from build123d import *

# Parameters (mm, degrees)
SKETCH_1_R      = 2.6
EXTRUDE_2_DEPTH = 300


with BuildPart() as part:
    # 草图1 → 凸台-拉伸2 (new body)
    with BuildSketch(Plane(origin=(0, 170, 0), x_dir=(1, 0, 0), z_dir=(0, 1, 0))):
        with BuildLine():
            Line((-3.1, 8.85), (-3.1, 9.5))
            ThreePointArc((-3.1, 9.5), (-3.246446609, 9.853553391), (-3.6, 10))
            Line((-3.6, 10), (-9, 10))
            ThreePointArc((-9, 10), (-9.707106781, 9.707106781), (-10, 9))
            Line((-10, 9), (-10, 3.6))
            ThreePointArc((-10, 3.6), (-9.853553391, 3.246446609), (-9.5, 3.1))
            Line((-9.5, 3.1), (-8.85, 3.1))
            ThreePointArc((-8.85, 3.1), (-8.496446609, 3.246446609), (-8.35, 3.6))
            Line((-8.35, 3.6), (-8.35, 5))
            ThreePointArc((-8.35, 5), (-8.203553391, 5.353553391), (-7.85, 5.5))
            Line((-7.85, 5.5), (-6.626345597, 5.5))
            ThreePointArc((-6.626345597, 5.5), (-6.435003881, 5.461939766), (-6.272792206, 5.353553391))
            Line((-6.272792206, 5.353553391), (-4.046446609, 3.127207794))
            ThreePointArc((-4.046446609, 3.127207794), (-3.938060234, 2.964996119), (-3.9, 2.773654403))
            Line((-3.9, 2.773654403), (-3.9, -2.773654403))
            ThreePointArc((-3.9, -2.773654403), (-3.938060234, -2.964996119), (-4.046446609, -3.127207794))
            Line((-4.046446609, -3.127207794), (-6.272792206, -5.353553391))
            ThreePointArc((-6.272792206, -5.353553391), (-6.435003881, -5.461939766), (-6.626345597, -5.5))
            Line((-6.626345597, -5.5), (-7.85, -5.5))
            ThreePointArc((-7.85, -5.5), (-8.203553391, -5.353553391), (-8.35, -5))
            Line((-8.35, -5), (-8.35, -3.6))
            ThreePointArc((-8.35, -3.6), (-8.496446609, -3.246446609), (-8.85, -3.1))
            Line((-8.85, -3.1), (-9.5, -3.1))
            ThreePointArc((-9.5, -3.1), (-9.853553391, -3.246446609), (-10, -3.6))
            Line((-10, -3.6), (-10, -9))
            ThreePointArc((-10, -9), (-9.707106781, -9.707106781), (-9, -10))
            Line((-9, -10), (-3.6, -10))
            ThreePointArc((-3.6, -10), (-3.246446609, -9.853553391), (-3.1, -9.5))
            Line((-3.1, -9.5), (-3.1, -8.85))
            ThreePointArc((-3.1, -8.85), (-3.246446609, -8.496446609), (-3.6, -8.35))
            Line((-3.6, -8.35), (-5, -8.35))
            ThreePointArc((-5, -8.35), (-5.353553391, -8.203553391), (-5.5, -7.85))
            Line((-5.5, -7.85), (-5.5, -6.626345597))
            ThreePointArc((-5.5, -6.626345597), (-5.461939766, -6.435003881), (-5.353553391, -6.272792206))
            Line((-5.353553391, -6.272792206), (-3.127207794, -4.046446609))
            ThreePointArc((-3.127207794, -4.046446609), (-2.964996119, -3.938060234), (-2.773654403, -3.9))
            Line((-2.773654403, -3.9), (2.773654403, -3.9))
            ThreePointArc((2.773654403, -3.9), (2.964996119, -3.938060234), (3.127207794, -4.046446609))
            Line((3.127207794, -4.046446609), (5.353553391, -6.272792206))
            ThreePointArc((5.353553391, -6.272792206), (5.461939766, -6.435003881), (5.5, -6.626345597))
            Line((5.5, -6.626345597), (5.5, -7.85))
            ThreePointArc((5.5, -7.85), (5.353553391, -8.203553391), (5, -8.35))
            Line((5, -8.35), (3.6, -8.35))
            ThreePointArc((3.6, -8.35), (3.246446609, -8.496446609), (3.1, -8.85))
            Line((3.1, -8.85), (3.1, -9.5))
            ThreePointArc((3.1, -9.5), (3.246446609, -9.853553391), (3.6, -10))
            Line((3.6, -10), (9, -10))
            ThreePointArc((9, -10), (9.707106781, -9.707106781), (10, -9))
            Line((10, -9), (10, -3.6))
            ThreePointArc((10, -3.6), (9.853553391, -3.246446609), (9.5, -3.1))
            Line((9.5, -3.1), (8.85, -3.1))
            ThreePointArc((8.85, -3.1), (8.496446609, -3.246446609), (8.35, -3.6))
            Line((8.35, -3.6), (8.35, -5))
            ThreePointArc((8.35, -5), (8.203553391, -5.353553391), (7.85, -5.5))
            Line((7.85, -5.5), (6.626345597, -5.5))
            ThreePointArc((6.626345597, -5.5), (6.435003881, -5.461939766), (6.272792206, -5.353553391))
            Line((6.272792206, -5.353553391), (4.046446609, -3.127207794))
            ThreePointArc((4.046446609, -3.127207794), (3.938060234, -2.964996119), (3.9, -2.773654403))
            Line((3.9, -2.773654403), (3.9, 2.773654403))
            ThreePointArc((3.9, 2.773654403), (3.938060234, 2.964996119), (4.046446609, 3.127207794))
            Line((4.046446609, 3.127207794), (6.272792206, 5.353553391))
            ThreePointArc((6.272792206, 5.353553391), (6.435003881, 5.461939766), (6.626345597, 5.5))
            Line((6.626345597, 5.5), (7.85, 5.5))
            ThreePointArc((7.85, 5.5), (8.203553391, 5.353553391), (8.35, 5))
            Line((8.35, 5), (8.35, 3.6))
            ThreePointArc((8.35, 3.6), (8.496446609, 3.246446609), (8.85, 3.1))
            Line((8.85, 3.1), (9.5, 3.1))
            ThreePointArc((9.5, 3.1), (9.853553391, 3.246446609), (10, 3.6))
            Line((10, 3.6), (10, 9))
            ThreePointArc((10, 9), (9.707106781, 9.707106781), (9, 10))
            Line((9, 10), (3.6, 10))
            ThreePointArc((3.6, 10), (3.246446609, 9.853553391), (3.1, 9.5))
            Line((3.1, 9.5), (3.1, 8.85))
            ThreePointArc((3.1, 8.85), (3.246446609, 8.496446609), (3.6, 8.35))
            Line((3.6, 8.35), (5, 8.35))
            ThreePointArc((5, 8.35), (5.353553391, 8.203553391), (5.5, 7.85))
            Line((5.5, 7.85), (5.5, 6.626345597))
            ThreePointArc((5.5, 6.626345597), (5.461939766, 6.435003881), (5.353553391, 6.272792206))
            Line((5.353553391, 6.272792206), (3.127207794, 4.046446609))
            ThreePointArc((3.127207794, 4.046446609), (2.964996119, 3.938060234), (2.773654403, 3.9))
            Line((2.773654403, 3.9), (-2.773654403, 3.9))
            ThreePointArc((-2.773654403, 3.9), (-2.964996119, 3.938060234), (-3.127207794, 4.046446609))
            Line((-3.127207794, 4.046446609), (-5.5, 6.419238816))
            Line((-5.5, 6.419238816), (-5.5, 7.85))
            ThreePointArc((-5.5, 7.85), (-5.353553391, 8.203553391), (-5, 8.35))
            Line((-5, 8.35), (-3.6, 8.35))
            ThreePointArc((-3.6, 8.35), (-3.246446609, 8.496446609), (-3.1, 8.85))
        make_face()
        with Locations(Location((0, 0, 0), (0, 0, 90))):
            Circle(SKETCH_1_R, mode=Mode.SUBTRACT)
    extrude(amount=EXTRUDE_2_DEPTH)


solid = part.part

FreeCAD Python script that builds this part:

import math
import FreeCAD as App
import Part
import Sketcher

V = App.Vector

doc = App.newDocument("Part")
body = doc.addObject("PartDesign::Body", "Body")

sketch1 = body.newObject("Sketcher::SketchObject", "Sketch")
sketch1.AttachmentSupport = (doc.getObject("XZ_Plane"), [""])
sketch1.MapMode = "FlatFace"
sketch1.AttachmentOffset = App.Placement(V(0, 0, -170), App.Rotation())
sketch1.addGeometry([
    Part.LineSegment(V(-3.1, -8.85, 0), V(-3.1, -9.5, 0)),
    Part.ArcOfCircle(Part.Circle(V(-3.6, -9.5, 0), V(0, 0, 1), 0.5), math.radians(-90), math.radians(0)),
    Part.LineSegment(V(-3.6, -10, 0), V(-9, -10, 0)),
    Part.ArcOfCircle(Part.Circle(V(-9, -9, 0), V(0, 0, 1), 1), math.radians(-180), math.radians(-90)),
    Part.LineSegment(V(-10, -9, 0), V(-10, -3.6, 0)),
    Part.ArcOfCircle(Part.Circle(V(-9.5, -3.6, 0), V(0, 0, 1), 0.5), math.radians(90), math.radians(180)),
    Part.LineSegment(V(-9.5, -3.1, 0), V(-8.85, -3.1, 0)),
    Part.ArcOfCircle(Part.Circle(V(-8.85, -3.6, 0), V(0, 0, 1), 0.5), math.radians(0), math.radians(90)),
    Part.LineSegment(V(-8.35, -3.6, 0), V(-8.35, -5, 0)),
    Part.ArcOfCircle(Part.Circle(V(-7.85, -5, 0), V(0, 0, 1), 0.5), math.radians(180), math.radians(270)),
    Part.LineSegment(V(-7.85, -5.5, 0), V(-6.63, -5.5, 0)),
    Part.ArcOfCircle(Part.Circle(V(-6.63, -5, 0), V(0, 0, 1), 0.5), math.radians(-90), math.radians(-45)),
    Part.LineSegment(V(-6.27, -5.35, 0), V(-4.05, -3.13, 0)),
    Part.ArcOfCircle(Part.Circle(V(-4.4, -2.77, 0), V(0, 0, 1), 0.5), math.radians(-45), math.radians(0)),
    Part.LineSegment(V(-3.9, -2.77, 0), V(-3.9, 2.77, 0)),
    Part.ArcOfCircle(Part.Circle(V(-4.4, 2.77, 0), V(0, 0, 1), 0.5), math.radians(0), math.radians(45)),
    Part.LineSegment(V(-4.05, 3.13, 0), V(-6.27, 5.35, 0)),
    Part.ArcOfCircle(Part.Circle(V(-6.63, 5, 0), V(0, 0, 1), 0.5), math.radians(45), math.radians(90)),
    Part.LineSegment(V(-6.63, 5.5, 0), V(-7.85, 5.5, 0)),
    Part.ArcOfCircle(Part.Circle(V(-7.85, 5, 0), V(0, 0, 1), 0.5), math.radians(90), math.radians(180)),
    Part.LineSegment(V(-8.35, 5, 0), V(-8.35, 3.6, 0)),
    Part.ArcOfCircle(Part.Circle(V(-8.85, 3.6, 0), V(0, 0, 1), 0.5), math.radians(-90), math.radians(0)),
    Part.LineSegment(V(-8.85, 3.1, 0), V(-9.5, 3.1, 0)),
    Part.ArcOfCircle(Part.Circle(V(-9.5, 3.6, 0), V(0, 0, 1), 0.5), math.radians(180), math.radians(270)),
    Part.LineSegment(V(-10, 3.6, 0), V(-10, 9, 0)),
    Part.ArcOfCircle(Part.Circle(V(-9, 9, 0), V(0, 0, 1), 1), math.radians(90), math.radians(180)),
    Part.LineSegment(V(-9, 10, 0), V(-3.6, 10, 0)),
    Part.ArcOfCircle(Part.Circle(V(-3.6, 9.5, 0), V(0, 0, 1), 0.5), math.radians(0), math.radians(90)),
    Part.LineSegment(V(-3.1, 9.5, 0), V(-3.1, 8.85, 0)),
    Part.ArcOfCircle(Part.Circle(V(-3.6, 8.85, 0), V(0, 0, 1), 0.5), math.radians(-90), math.radians(0)),
    Part.LineSegment(V(-3.6, 8.35, 0), V(-5, 8.35, 0)),
    Part.ArcOfCircle(Part.Circle(V(-5, 7.85, 0), V(0, 0, 1), 0.5), math.radians(90), math.radians(180)),
    Part.LineSegment(V(-5.5, 7.85, 0), V(-5.5, 6.63, 0)),
    Part.ArcOfCircle(Part.Circle(V(-5, 6.63, 0), V(0, 0, 1), 0.5), math.radians(-180), math.radians(-135)),
    Part.LineSegment(V(-5.35, 6.27, 0), V(-3.13, 4.05, 0)),
    Part.ArcOfCircle(Part.Circle(V(-2.77, 4.4, 0), V(0, 0, 1), 0.5), math.radians(-135), math.radians(-90)),
    Part.LineSegment(V(-2.77, 3.9, 0), V(2.77, 3.9, 0)),
    Part.ArcOfCircle(Part.Circle(V(2.77, 4.4, 0), V(0, 0, 1), 0.5), math.radians(-90), math.radians(-45)),
    Part.LineSegment(V(3.13, 4.05, 0), V(5.35, 6.27, 0)),
    Part.ArcOfCircle(Part.Circle(V(5, 6.63, 0), V(0, 0, 1), 0.5), math.radians(-45), math.radians(0)),
    Part.LineSegment(V(5.5, 6.63, 0), V(5.5, 7.85, 0)),
    Part.ArcOfCircle(Part.Circle(V(5, 7.85, 0), V(0, 0, 1), 0.5), math.radians(0), math.radians(90)),
    Part.LineSegment(V(5, 8.35, 0), V(3.6, 8.35, 0)),
    Part.ArcOfCircle(Part.Circle(V(3.6, 8.85, 0), V(0, 0, 1), 0.5), math.radians(180), math.radians(270)),
    Part.LineSegment(V(3.1, 8.85, 0), V(3.1, 9.5, 0)),
    Part.ArcOfCircle(Part.Circle(V(3.6, 9.5, 0), V(0, 0, 1), 0.5), math.radians(90), math.radians(180)),
    Part.LineSegment(V(3.6, 10, 0), V(9, 10, 0)),
    Part.ArcOfCircle(Part.Circle(V(9, 9, 0), V(0, 0, 1), 1), math.radians(0), math.radians(90)),
    Part.LineSegment(V(10, 9, 0), V(10, 3.6, 0)),
    Part.ArcOfCircle(Part.Circle(V(9.5, 3.6, 0), V(0, 0, 1), 0.5), math.radians(-90), math.radians(0)),
    Part.LineSegment(V(9.5, 3.1, 0), V(8.85, 3.1, 0)),
    Part.ArcOfCircle(Part.Circle(V(8.85, 3.6, 0), V(0, 0, 1), 0.5), math.radians(180), math.radians(270)),
    Part.LineSegment(V(8.35, 3.6, 0), V(8.35, 5, 0)),
    Part.ArcOfCircle(Part.Circle(V(7.85, 5, 0), V(0, 0, 1), 0.5), math.radians(0), math.radians(90)),
    Part.LineSegment(V(7.85, 5.5, 0), V(6.63, 5.5, 0)),
    Part.ArcOfCircle(Part.Circle(V(6.63, 5, 0), V(0, 0, 1), 0.5), math.radians(90), math.radians(135)),
    Part.LineSegment(V(6.27, 5.35, 0), V(4.05, 3.13, 0)),
    Part.ArcOfCircle(Part.Circle(V(4.4, 2.77, 0), V(0, 0, 1), 0.5), math.radians(135), math.radians(180)),
    Part.LineSegment(V(3.9, 2.77, 0), V(3.9, -2.77, 0)),
    Part.ArcOfCircle(Part.Circle(V(4.4, -2.77, 0), V(0, 0, 1), 0.5), math.radians(-180), math.radians(-135)),
    Part.LineSegment(V(4.05, -3.13, 0), V(6.27, -5.35, 0)),
    Part.ArcOfCircle(Part.Circle(V(6.63, -5, 0), V(0, 0, 1), 0.5), math.radians(-135), math.radians(-90)),
    Part.LineSegment(V(6.63, -5.5, 0), V(7.85, -5.5, 0)),
    Part.ArcOfCircle(Part.Circle(V(7.85, -5, 0), V(0, 0, 1), 0.5), math.radians(-90), math.radians(0)),
    Part.LineSegment(V(8.35, -5, 0), V(8.35, -3.6, 0)),
    Part.ArcOfCircle(Part.Circle(V(8.85, -3.6, 0), V(0, 0, 1), 0.5), math.radians(90), math.radians(180)),
    Part.LineSegment(V(8.85, -3.1, 0), V(9.5, -3.1, 0)),
    Part.ArcOfCircle(Part.Circle(V(9.5, -3.6, 0), V(0, 0, 1), 0.5), math.radians(0), math.radians(90)),
    Part.LineSegment(V(10, -3.6, 0), V(10, -9, 0)),
    Part.ArcOfCircle(Part.Circle(V(9, -9, 0), V(0, 0, 1), 1), math.radians(-90), math.radians(0)),
    Part.LineSegment(V(9, -10, 0), V(3.6, -10, 0)),
    Part.ArcOfCircle(Part.Circle(V(3.6, -9.5, 0), V(0, 0, 1), 0.5), math.radians(180), math.radians(270)),
    Part.LineSegment(V(3.1, -9.5, 0), V(3.1, -8.85, 0)),
    Part.ArcOfCircle(Part.Circle(V(3.6, -8.85, 0), V(0, 0, 1), 0.5), math.radians(90), math.radians(180)),
    Part.LineSegment(V(3.6, -8.35, 0), V(5, -8.35, 0)),
    Part.ArcOfCircle(Part.Circle(V(5, -7.85, 0), V(0, 0, 1), 0.5), math.radians(-90), math.radians(0)),
    Part.LineSegment(V(5.5, -7.85, 0), V(5.5, -6.63, 0)),
    Part.ArcOfCircle(Part.Circle(V(5, -6.63, 0), V(0, 0, 1), 0.5), math.radians(0), math.radians(45)),
    Part.LineSegment(V(5.35, -6.27, 0), V(3.13, -4.05, 0)),
    Part.ArcOfCircle(Part.Circle(V(2.77, -4.4, 0), V(0, 0, 1), 0.5), math.radians(45), math.radians(90)),
    Part.LineSegment(V(2.77, -3.9, 0), V(-2.77, -3.9, 0)),
    Part.ArcOfCircle(Part.Circle(V(-2.77, -4.4, 0), V(0, 0, 1), 0.5), math.radians(90), math.radians(135)),
    Part.LineSegment(V(-3.13, -4.05, 0), V(-5.5, -6.42, 0)),
    Part.LineSegment(V(-5.5, -6.42, 0), V(-5.5, -7.85, 0)),
    Part.ArcOfCircle(Part.Circle(V(-5, -7.85, 0), V(0, 0, 1), 0.5), math.radians(180), math.radians(270)),
    Part.LineSegment(V(-5, -8.35, 0), V(-3.6, -8.35, 0)),
    Part.ArcOfCircle(Part.Circle(V(-3.6, -8.85, 0), V(0, 0, 1), 0.5), math.radians(0), math.radians(90)),
    Part.Circle(V(0, 0, 0), V(0, 0, 1), 2.6),
], False)
sketch1.addConstraint([
    Sketcher.Constraint("Tangent", 0, 2, 1, 2),
    Sketcher.Constraint("Tangent", 1, 1, 2, 1),
    Sketcher.Constraint("Tangent", 2, 2, 3, 2),
    Sketcher.Constraint("Tangent", 3, 1, 4, 1),
    Sketcher.Constraint("Tangent", 4, 2, 5, 2),
    Sketcher.Constraint("Tangent", 5, 1, 6, 1),
    Sketcher.Constraint("Tangent", 6, 2, 7, 2),
    Sketcher.Constraint("Tangent", 7, 1, 8, 1),
    Sketcher.Constraint("Tangent", 8, 2, 9, 1),
    Sketcher.Constraint("Tangent", 9, 2, 10, 1),
    Sketcher.Constraint("Tangent", 10, 2, 11, 1),
    Sketcher.Constraint("Tangent", 11, 2, 12, 1),
    Sketcher.Constraint("Tangent", 12, 2, 13, 1),
    Sketcher.Constraint("Tangent", 13, 2, 14, 1),
    Sketcher.Constraint("Tangent", 14, 2, 15, 1),
    Sketcher.Constraint("Tangent", 15, 2, 16, 1),
    Sketcher.Constraint("Tangent", 16, 2, 17, 1),
    Sketcher.Constraint("Tangent", 17, 2, 18, 1),
    Sketcher.Constraint("Tangent", 18, 2, 19, 1),
    Sketcher.Constraint("Tangent", 19, 2, 20, 1),
    Sketcher.Constraint("Tangent", 20, 2, 21, 2),
    Sketcher.Constraint("Tangent", 21, 1, 22, 1),
    Sketcher.Constraint("Tangent", 22, 2, 23, 2),
    Sketcher.Constraint("Tangent", 23, 1, 24, 1),
    Sketcher.Constraint("Tangent", 24, 2, 25, 2),
    Sketcher.Constraint("Tangent", 25, 1, 26, 1),
    Sketcher.Constraint("Tangent", 26, 2, 27, 2),
    Sketcher.Constraint("Tangent", 27, 1, 28, 1),
    Sketcher.Constraint("Tangent", 28, 2, 29, 2),
    Sketcher.Constraint("Tangent", 29, 1, 30, 1),
    Sketcher.Constraint("Tangent", 30, 2, 31, 1),
    Sketcher.Constraint("Tangent", 31, 2, 32, 1),
    Sketcher.Constraint("Tangent", 32, 2, 33, 1),
    Sketcher.Constraint("Tangent", 33, 2, 34, 1),
    Sketcher.Constraint("Tangent", 34, 2, 35, 1),
    Sketcher.Constraint("Tangent", 35, 2, 36, 1),
    Sketcher.Constraint("Tangent", 36, 2, 37, 1),
    Sketcher.Constraint("Tangent", 37, 2, 38, 1),
    Sketcher.Constraint("Tangent", 38, 2, 39, 1),
    Sketcher.Constraint("Tangent", 39, 2, 40, 1),
    Sketcher.Constraint("Tangent", 40, 2, 41, 1),
    Sketcher.Constraint("Tangent", 41, 2, 42, 1),
    Sketcher.Constraint("Tangent", 42, 2, 43, 2),
    Sketcher.Constraint("Tangent", 43, 1, 44, 1),
    Sketcher.Constraint("Tangent", 44, 2, 45, 2),
    Sketcher.Constraint("Tangent", 45, 1, 46, 1),
    Sketcher.Constraint("Tangent", 46, 2, 47, 2),
    Sketcher.Constraint("Tangent", 47, 1, 48, 1),
    Sketcher.Constraint("Tangent", 48, 2, 49, 2),
    Sketcher.Constraint("Tangent", 49, 1, 50, 1),
    Sketcher.Constraint("Tangent", 50, 2, 51, 2),
    Sketcher.Constraint("Tangent", 51, 1, 52, 1),
    Sketcher.Constraint("Tangent", 52, 2, 53, 1),
    Sketcher.Constraint("Tangent", 53, 2, 54, 1),
    Sketcher.Constraint("Tangent", 54, 2, 55, 1),
    Sketcher.Constraint("Tangent", 55, 2, 56, 1),
    Sketcher.Constraint("Tangent", 56, 2, 57, 1),
    Sketcher.Constraint("Tangent", 57, 2, 58, 1),
    Sketcher.Constraint("Tangent", 58, 2, 59, 1),
    Sketcher.Constraint("Tangent", 59, 2, 60, 1),
    Sketcher.Constraint("Tangent", 60, 2, 61, 1),
    Sketcher.Constraint("Tangent", 61, 2, 62, 1),
    Sketcher.Constraint("Tangent", 62, 2, 63, 1),
    Sketcher.Constraint("Tangent", 63, 2, 64, 1),
    Sketcher.Constraint("Tangent", 64, 2, 65, 2),
    Sketcher.Constraint("Tangent", 65, 1, 66, 1),
    Sketcher.Constraint("Tangent", 66, 2, 67, 2),
    Sketcher.Constraint("Tangent", 67, 1, 68, 1),
    Sketcher.Constraint("Tangent", 68, 2, 69, 2),
    Sketcher.Constraint("Tangent", 69, 1, 70, 1),
    Sketcher.Constraint("Tangent", 70, 2, 71, 2),
    Sketcher.Constraint("Tangent", 71, 1, 72, 1),
    Sketcher.Constraint("Tangent", 72, 2, 73, 2),
    Sketcher.Constraint("Tangent", 73, 1, 74, 1),
    Sketcher.Constraint("Tangent", 74, 2, 75, 1),
    Sketcher.Constraint("Tangent", 75, 2, 76, 1),
    Sketcher.Constraint("Tangent", 76, 2, 77, 1),
    Sketcher.Constraint("Tangent", 77, 2, 78, 1),
    Sketcher.Constraint("Tangent", 78, 2, 79, 1),
    Sketcher.Constraint("Tangent", 79, 2, 80, 1),
    Sketcher.Constraint("Tangent", 80, 2, 81, 1),
    Sketcher.Constraint("Tangent", 81, 2, 82, 1),
    Sketcher.Constraint("Coincident", 82, 2, 83, 1),
    Sketcher.Constraint("Tangent", 83, 2, 84, 1),
    Sketcher.Constraint("Tangent", 84, 2, 85, 1),
    Sketcher.Constraint("Tangent", 85, 2, 86, 2),
    Sketcher.Constraint("Tangent", 86, 1, 0, 1),
    Sketcher.Constraint("Vertical", 0),
    Sketcher.Constraint("Horizontal", 2),
    Sketcher.Constraint("Vertical", 4),
    Sketcher.Constraint("Horizontal", 6),
    Sketcher.Constraint("Vertical", 8),
    Sketcher.Constraint("Horizontal", 10),
    Sketcher.Constraint("Vertical", 14),
    Sketcher.Constraint("Horizontal", 18),
    Sketcher.Constraint("Vertical", 20),
    Sketcher.Constraint("Horizontal", 22),
    Sketcher.Constraint("Vertical", 24),
    Sketcher.Constraint("Horizontal", 26),
    Sketcher.Constraint("Vertical", 28),
    Sketcher.Constraint("Horizontal", 30),
    Sketcher.Constraint("Vertical", 32),
    Sketcher.Constraint("Horizontal", 36),
    Sketcher.Constraint("Vertical", 40),
    Sketcher.Constraint("Horizontal", 42),
    Sketcher.Constraint("Vertical", 44),
    Sketcher.Constraint("Horizontal", 46),
    Sketcher.Constraint("Vertical", 48),
    Sketcher.Constraint("Horizontal", 50),
    Sketcher.Constraint("Vertical", 52),
    Sketcher.Constraint("Horizontal", 54),
    Sketcher.Constraint("Vertical", 58),
    Sketcher.Constraint("Horizontal", 62),
    Sketcher.Constraint("Vertical", 64),
    Sketcher.Constraint("Horizontal", 66),
    Sketcher.Constraint("Vertical", 68),
    Sketcher.Constraint("Horizontal", 70),
    Sketcher.Constraint("Vertical", 72),
    Sketcher.Constraint("Horizontal", 74),
    Sketcher.Constraint("Vertical", 76),
    Sketcher.Constraint("Horizontal", 80),
    Sketcher.Constraint("Vertical", 83),
    Sketcher.Constraint("Horizontal", 85),
    Sketcher.Constraint("Coincident", 87, 3, -1, 1),
    Sketcher.Constraint("Equal", 1, 5),
    Sketcher.Constraint("Equal", 5, 7),
    Sketcher.Constraint("Equal", 7, 9),
    Sketcher.Constraint("Equal", 9, 11),
    Sketcher.Constraint("Equal", 11, 13),
    Sketcher.Constraint("Equal", 13, 15),
    Sketcher.Constraint("Equal", 15, 17),
    Sketcher.Constraint("Equal", 17, 19),
    Sketcher.Constraint("Equal", 19, 21),
    Sketcher.Constraint("Equal", 21, 23),
    Sketcher.Constraint("Equal", 3, 25),
    Sketcher.Constraint("Equal", 23, 27),
    Sketcher.Constraint("Equal", 27, 29),
    Sketcher.Constraint("Equal", 29, 31),
    Sketcher.Constraint("Equal", 31, 33),
    Sketcher.Constraint("Equal", 33, 35),
    Sketcher.Constraint("Equal", 35, 37),
    Sketcher.Constraint("Equal", 37, 39),
    Sketcher.Constraint("Equal", 39, 41),
    Sketcher.Constraint("Equal", 41, 43),
    Sketcher.Constraint("Equal", 43, 45),
    Sketcher.Constraint("Equal", 25, 47),
    Sketcher.Constraint("Equal", 45, 49),
    Sketcher.Constraint("Equal", 49, 51),
    Sketcher.Constraint("Equal", 51, 53),
    Sketcher.Constraint("Equal", 53, 55),
    Sketcher.Constraint("Equal", 55, 57),
    Sketcher.Constraint("Equal", 57, 59),
    Sketcher.Constraint("Equal", 59, 61),
    Sketcher.Constraint("Equal", 61, 63),
    Sketcher.Constraint("Equal", 63, 65),
    Sketcher.Constraint("Equal", 65, 67),
    Sketcher.Constraint("Equal", 47, 69),
    Sketcher.Constraint("Equal", 67, 71),
    Sketcher.Constraint("Equal", 71, 73),
    Sketcher.Constraint("Equal", 73, 75),
    Sketcher.Constraint("Equal", 75, 77),
    Sketcher.Constraint("Equal", 77, 79),
    Sketcher.Constraint("Equal", 79, 81),
    Sketcher.Constraint("Equal", 81, 84),
    Sketcher.Constraint("Equal", 84, 86),
    Sketcher.Constraint("Symmetric", 1, 3, 45, 3, -1, 1),
    Sketcher.Constraint("Symmetric", 5, 3, 49, 3, -1, 1),
    Sketcher.Constraint("Symmetric", 9, 3, 53, 3, -1, 1),
    Sketcher.Constraint("Symmetric", 13, 3, 57, 3, -1, 1),
    Sketcher.Constraint("Symmetric", 17, 3, 61, 3, -1, 1),
    Sketcher.Constraint("Symmetric", 21, 3, 65, 3, -1, 1),
    Sketcher.Constraint("Symmetric", 25, 3, 69, 3, -1, 1),
    Sketcher.Constraint("Symmetric", 29, 3, 73, 3, -1, 1),
    Sketcher.Constraint("Symmetric", 33, 3, 77, 3, -1, 1),
    Sketcher.Constraint("Symmetric", 35, 3, 79, 3, -1, 1),
    Sketcher.Constraint("Symmetric", 41, 3, 84, 3, -1, 1),
    Sketcher.Constraint("Symmetric", 37, 2, 81, 2, -1, 1),
    Sketcher.Constraint("Symmetric", 33, 3, 39, 3, -2),
    Sketcher.Constraint("Symmetric", 29, 3, 43, 3, -2),
    Sketcher.Constraint("Symmetric", 25, 3, 47, 3, -2),
    Sketcher.Constraint("Symmetric", 21, 3, 51, 3, -2),
    Sketcher.Constraint("Symmetric", 17, 3, 55, 3, -2),
    Sketcher.Constraint("Symmetric", 12, 2, 59, 2, -2),
    Sketcher.Constraint("Perpendicular", 12, 16),
    Sketcher.Constraint("Parallel", 16, 34),
    Sketcher.Constraint("Perpendicular", 34, 38),
    Sketcher.Constraint("Perpendicular", 56, 60),
    Sketcher.Constraint("Equal", 66, 0),
    Sketcher.Constraint("Equal", 70, 4),
    Sketcher.Constraint("Equal", 85, 8),
    Sketcher.Constraint("Equal", 80, 14),
    Sketcher.Constraint("Equal", 62, 32),
    Sketcher.Constraint("Equal", 16, 34),
    Sketcher.Constraint("Radius", 3, 1.0),
    Sketcher.Constraint("Diameter", 87, 5.2),
    Sketcher.Constraint("Radius", 1, 0.5),
    Sketcher.Constraint("DistanceX", 2, 2, 2, 1, 5.4),
    Sketcher.Constraint("DistanceX", 30, 2, 30, 1, 1.4),
    Sketcher.Constraint("DistanceX", 3, 3, -1, 1, 9.0),
    Sketcher.Constraint("DistanceX", 6, 1, 6, 2, 0.65),
    Sketcher.Constraint("DistanceX", 13, 3, -1, 1, 4.4),
    Sketcher.Constraint("DistanceX", 36, 1, 36, 2, 5.547309),
])
pad1 = body.newObject("PartDesign::Pad", "Pad")
pad1.Profile = sketch1
pad1.Length = 300
pad1.Reversed = True

doc.recompute()
